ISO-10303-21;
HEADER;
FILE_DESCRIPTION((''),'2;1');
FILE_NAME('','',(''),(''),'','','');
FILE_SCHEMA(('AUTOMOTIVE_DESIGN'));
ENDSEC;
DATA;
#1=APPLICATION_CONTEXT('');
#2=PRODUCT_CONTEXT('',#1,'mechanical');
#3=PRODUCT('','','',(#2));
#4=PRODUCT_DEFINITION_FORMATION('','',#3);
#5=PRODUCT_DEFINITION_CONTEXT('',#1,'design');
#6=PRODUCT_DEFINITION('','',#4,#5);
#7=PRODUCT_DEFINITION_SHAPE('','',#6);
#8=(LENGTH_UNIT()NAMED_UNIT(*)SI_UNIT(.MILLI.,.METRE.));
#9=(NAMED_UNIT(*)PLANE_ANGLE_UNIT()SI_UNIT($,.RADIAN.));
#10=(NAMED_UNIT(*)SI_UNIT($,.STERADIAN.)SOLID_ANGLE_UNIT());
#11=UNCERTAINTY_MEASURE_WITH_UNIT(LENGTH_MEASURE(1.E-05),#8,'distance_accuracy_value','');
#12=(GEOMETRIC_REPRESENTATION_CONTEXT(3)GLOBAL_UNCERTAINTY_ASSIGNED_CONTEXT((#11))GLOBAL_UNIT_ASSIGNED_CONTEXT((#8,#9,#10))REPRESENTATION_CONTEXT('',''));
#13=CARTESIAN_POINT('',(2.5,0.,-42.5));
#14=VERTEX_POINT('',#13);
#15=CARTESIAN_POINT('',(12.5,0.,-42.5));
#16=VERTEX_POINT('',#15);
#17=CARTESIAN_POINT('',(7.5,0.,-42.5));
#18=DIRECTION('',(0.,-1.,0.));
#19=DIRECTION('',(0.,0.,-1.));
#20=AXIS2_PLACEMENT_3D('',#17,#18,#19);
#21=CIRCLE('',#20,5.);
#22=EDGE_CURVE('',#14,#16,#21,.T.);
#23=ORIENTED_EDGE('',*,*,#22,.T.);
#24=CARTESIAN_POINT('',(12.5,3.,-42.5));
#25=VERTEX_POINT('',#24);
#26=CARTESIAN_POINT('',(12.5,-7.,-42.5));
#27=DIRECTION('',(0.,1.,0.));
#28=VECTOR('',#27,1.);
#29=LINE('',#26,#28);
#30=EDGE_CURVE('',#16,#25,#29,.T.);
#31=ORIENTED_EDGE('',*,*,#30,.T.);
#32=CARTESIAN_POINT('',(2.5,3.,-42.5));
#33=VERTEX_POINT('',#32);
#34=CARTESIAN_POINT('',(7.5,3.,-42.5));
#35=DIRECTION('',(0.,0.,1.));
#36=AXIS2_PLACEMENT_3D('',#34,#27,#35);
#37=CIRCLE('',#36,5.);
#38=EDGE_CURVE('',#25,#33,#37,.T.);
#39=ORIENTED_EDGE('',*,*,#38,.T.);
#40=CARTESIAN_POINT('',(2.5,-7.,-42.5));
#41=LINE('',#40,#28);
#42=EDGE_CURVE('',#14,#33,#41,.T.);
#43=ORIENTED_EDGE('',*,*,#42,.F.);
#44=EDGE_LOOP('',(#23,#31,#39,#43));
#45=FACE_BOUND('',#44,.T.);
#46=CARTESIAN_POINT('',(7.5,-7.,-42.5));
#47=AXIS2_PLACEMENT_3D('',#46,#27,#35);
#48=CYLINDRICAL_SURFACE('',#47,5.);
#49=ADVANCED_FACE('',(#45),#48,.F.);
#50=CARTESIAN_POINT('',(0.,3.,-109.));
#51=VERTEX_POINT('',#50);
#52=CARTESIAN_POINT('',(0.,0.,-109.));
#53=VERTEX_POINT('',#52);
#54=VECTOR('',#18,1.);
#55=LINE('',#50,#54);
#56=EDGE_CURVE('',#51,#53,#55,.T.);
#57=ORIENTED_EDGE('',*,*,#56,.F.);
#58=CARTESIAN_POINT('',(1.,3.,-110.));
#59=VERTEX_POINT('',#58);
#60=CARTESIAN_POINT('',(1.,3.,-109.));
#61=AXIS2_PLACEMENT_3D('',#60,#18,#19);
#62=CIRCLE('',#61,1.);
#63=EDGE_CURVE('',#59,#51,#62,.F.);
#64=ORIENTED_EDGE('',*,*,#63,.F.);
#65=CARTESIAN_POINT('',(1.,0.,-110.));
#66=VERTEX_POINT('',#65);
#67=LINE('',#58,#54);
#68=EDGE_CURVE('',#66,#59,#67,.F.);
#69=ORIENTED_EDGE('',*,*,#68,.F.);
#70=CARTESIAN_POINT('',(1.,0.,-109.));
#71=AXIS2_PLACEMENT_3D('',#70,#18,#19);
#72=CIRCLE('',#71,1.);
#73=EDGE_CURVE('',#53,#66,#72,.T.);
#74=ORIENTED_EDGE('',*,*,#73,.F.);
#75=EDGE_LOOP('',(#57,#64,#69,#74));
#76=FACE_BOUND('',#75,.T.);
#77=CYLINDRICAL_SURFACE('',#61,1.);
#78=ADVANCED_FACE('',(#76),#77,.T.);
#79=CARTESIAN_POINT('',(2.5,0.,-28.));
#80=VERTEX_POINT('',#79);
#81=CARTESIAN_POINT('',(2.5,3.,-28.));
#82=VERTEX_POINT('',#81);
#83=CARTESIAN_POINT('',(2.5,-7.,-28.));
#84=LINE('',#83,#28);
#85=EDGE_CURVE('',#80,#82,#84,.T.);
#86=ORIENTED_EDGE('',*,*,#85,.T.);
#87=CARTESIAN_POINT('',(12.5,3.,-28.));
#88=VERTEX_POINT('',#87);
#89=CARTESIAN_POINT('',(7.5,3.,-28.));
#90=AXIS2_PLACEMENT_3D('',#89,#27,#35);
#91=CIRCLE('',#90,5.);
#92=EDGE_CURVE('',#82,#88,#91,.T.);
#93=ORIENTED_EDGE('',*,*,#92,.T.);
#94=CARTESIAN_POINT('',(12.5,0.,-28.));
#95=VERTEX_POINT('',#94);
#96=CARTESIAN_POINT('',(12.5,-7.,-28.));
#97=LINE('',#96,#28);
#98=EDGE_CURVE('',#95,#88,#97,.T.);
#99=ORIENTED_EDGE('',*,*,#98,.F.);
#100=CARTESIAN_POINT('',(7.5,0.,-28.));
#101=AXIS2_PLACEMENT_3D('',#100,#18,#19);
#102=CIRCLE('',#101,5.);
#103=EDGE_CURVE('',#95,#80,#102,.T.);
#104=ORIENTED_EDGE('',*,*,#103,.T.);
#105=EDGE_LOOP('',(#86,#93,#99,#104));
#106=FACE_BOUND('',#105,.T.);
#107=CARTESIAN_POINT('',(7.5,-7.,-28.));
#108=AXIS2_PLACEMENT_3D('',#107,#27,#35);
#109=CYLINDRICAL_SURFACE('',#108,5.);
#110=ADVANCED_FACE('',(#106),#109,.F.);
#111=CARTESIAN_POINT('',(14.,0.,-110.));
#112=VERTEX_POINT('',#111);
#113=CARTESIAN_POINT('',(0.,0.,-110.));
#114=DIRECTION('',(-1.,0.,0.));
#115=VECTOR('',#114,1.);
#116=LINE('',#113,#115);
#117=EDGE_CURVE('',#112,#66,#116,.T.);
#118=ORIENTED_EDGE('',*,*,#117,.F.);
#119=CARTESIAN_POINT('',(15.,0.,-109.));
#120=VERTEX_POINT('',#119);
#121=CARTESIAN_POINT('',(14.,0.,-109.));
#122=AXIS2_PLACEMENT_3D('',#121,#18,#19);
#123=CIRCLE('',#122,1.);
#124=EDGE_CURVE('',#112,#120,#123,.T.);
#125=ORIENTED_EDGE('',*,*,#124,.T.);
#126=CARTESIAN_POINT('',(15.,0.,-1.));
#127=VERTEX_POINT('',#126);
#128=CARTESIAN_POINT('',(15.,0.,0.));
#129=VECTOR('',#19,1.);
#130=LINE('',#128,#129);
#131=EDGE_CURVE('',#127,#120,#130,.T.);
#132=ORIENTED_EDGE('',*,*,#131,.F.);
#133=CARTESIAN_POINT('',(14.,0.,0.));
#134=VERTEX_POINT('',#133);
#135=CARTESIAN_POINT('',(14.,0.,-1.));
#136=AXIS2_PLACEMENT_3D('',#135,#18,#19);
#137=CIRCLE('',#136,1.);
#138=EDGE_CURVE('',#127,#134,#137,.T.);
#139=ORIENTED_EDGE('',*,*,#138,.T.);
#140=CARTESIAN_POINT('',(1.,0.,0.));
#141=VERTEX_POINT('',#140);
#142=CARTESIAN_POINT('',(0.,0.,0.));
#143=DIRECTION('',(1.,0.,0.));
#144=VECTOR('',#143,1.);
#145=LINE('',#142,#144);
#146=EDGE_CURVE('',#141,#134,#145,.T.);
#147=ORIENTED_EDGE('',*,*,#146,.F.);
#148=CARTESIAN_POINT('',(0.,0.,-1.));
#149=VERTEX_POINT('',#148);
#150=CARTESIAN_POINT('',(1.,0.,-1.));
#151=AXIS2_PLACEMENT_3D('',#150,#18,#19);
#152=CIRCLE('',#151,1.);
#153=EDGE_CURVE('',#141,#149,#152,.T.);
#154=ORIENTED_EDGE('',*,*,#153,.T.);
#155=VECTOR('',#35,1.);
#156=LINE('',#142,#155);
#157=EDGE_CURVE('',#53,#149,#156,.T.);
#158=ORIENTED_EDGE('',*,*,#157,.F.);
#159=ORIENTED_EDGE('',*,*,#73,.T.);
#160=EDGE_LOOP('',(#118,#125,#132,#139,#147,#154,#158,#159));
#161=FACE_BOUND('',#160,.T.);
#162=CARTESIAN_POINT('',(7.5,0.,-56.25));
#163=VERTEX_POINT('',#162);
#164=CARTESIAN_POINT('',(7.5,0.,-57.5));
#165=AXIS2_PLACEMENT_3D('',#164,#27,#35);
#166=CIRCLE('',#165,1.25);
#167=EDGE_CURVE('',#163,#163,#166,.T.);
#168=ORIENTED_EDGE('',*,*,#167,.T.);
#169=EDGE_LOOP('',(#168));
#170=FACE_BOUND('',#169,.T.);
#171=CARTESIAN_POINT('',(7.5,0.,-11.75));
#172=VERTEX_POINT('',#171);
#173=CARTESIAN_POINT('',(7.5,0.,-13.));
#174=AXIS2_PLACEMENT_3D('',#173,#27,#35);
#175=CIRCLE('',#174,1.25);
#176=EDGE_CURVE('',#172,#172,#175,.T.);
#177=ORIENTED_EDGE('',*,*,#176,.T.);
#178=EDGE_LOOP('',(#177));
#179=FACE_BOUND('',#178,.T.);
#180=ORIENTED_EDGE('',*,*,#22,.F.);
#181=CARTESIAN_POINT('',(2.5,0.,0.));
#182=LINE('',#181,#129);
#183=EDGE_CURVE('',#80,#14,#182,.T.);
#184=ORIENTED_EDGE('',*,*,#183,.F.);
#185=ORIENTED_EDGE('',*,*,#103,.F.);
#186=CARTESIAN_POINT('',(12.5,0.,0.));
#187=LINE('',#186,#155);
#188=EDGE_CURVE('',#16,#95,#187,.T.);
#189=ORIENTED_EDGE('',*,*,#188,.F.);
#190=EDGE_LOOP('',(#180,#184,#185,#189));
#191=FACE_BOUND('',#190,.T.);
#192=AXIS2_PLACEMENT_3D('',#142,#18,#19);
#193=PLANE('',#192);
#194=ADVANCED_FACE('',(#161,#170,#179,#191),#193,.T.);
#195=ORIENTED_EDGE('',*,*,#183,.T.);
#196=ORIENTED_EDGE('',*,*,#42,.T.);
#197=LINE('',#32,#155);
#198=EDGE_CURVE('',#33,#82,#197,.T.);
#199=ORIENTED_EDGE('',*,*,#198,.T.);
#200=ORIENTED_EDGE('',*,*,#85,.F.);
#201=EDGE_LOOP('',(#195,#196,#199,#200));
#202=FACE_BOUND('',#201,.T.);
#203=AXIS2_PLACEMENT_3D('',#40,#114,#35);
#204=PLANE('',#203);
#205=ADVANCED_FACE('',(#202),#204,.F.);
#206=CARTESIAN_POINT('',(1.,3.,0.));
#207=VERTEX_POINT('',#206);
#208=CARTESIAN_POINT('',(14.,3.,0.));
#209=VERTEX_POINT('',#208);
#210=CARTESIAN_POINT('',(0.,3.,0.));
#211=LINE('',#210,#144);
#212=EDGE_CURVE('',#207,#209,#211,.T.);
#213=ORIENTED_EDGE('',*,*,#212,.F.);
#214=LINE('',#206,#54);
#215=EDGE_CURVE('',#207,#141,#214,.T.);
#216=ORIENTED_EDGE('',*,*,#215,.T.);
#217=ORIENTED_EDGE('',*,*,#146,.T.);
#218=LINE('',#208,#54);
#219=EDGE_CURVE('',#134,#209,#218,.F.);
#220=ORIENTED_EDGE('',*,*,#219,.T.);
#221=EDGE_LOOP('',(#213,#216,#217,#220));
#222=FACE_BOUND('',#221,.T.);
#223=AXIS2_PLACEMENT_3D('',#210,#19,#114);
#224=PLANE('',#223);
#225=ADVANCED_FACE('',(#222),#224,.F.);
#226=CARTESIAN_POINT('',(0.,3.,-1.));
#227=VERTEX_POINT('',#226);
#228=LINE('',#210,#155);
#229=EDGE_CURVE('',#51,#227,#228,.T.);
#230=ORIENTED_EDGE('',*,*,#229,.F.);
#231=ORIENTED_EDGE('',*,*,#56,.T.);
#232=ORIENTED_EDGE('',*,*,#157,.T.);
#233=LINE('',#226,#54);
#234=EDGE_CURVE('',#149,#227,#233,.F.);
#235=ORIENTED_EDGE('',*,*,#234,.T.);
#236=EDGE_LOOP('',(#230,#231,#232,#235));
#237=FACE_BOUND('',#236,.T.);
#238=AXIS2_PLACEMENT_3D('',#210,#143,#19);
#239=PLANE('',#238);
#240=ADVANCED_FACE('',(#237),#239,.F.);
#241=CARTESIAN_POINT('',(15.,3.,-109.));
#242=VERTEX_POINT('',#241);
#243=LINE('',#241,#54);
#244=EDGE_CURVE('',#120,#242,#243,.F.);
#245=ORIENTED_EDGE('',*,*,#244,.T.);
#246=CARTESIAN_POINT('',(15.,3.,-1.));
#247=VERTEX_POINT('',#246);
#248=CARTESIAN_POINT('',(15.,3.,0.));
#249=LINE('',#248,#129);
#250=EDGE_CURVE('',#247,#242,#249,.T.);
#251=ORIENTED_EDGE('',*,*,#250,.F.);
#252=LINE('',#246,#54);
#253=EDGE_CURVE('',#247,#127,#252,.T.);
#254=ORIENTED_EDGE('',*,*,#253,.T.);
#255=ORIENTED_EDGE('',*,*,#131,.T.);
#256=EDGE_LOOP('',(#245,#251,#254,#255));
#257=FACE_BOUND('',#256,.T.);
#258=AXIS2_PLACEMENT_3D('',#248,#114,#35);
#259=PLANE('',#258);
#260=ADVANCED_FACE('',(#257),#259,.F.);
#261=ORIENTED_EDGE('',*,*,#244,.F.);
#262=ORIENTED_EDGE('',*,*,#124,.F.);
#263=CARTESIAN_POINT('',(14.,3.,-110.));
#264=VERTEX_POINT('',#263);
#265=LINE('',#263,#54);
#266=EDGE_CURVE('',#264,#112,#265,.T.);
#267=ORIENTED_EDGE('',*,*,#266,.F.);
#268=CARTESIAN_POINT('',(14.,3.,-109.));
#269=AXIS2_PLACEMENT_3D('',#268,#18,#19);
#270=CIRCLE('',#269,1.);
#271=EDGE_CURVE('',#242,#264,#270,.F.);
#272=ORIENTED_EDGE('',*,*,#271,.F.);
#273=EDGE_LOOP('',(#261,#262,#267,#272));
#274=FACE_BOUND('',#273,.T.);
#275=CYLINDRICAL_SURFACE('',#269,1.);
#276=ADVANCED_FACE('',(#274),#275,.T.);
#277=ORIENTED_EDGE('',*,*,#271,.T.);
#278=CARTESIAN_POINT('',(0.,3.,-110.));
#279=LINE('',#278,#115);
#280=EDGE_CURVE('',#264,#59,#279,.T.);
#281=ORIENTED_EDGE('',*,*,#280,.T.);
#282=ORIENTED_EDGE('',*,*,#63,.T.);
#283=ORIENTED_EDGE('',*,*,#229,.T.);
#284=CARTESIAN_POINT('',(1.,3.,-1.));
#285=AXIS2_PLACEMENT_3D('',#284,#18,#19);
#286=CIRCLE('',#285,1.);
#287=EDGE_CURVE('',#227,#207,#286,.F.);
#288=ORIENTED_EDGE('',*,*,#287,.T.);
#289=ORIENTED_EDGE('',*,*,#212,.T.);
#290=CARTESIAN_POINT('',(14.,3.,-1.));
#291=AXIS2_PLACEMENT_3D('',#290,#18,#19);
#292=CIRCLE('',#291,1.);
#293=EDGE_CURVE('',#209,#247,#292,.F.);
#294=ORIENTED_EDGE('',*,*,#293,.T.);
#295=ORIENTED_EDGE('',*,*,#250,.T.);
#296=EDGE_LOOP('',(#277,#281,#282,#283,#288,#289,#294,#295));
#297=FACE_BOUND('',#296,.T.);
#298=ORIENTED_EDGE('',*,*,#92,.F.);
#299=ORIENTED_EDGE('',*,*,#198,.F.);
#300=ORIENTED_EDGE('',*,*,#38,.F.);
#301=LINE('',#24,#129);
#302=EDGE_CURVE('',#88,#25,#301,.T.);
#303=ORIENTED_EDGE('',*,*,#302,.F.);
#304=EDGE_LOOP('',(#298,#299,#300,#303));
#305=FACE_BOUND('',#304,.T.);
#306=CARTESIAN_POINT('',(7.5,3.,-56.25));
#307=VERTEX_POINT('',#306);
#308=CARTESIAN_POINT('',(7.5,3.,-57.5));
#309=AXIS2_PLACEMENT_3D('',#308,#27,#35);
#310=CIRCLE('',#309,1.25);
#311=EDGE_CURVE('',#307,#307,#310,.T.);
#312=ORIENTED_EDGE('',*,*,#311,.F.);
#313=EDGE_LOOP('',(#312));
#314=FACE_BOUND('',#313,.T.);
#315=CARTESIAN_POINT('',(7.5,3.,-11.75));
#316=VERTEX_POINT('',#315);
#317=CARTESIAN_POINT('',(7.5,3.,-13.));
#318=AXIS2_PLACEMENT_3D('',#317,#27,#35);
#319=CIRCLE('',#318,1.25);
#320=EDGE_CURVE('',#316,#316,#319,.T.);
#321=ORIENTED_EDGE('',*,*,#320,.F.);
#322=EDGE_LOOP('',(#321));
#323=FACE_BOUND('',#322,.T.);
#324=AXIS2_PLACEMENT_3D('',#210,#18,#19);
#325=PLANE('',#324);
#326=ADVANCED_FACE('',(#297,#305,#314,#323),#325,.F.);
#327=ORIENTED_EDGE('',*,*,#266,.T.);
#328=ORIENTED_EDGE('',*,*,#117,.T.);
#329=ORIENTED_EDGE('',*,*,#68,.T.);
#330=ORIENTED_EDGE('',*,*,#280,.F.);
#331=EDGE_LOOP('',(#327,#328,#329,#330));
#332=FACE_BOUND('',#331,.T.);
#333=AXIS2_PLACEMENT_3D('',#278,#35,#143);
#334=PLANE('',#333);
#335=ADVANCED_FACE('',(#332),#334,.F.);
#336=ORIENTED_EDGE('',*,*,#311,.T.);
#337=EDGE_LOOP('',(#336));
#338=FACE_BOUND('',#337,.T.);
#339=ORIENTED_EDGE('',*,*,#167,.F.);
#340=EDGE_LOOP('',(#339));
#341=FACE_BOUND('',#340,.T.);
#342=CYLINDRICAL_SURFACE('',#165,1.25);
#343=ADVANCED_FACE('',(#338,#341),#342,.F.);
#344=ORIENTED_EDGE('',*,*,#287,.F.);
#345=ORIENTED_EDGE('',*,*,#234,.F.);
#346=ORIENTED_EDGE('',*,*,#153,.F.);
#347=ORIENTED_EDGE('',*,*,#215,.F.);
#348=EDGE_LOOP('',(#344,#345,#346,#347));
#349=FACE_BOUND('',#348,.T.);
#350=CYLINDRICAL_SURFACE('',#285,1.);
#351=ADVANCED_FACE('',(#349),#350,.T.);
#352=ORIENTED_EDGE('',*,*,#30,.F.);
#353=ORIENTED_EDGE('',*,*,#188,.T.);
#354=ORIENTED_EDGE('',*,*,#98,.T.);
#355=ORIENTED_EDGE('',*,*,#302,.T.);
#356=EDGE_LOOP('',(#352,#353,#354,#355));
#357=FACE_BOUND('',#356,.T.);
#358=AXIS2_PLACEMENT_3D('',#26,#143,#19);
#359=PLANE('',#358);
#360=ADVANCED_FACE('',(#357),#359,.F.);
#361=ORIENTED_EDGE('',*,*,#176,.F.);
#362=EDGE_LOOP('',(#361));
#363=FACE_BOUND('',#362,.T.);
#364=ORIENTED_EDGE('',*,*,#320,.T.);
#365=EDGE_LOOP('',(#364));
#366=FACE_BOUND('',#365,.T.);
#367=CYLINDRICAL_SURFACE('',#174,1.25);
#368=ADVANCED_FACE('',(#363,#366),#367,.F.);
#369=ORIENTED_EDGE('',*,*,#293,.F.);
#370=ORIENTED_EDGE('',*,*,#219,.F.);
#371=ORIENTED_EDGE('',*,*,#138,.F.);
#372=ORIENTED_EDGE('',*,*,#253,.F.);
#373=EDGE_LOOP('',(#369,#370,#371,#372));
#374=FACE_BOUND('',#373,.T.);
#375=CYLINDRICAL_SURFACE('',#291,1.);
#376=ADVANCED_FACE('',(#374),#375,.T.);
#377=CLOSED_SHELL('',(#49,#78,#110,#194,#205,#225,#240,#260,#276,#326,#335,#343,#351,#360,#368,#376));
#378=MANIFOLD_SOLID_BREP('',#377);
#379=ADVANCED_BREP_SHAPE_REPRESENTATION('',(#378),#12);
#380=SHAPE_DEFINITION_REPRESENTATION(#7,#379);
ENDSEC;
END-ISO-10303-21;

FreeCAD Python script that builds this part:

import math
import FreeCAD as App
import Part
import Sketcher

V = App.Vector
Q = App.Units.Quantity


def edges_at(feature, points):
    """Names of the edges that pass closest to the given points."""
    edges = feature.Shape.Edges
    near = lambda p: min(range(len(edges)), key=lambda i: edges[i].distToShape(Part.Vertex(*p))[0])
    return sorted({f"Edge{near(p) + 1}" for p in points})


def add_polygon(sketch, points):
    """Adds a closed chain of lines whose ends are joined by coincident constraints."""
    first, n = sketch.GeometryCount, len(points)
    for a, b in zip(points, points[1:] + points[:1]):
        sketch.addGeometry(Part.LineSegment(App.Vector(*a, 0), App.Vector(*b, 0)), False)
    for i in range(n):
        sketch.addConstraint(Sketcher.Constraint("Coincident", first + i, 2, first + (i + 1) % n, 1))

doc = App.newDocument("Part")
params = doc.addObject("Spreadsheet::Sheet", "Params")
for row, (alias, value) in enumerate([
    ("sketch1_width", "15 mm"),
    ("sketch1_height", "110 mm"),
    ("pad1_length", "3 mm"),
    ("fillet_radius", "1 mm"),
    ("sketch2_diameter", "2.5 mm"),
    ("pocket1_length", "3 mm"),
    ("sketch3_radius", "5 mm"),
    ("sketch3_height", "14.5 mm"),
    ("pocket2_length", "10 mm"),
], start=1):
    params.set(f"A{row}", alias)
    params.set(f"B{row}", "=" + value)
    params.setAlias(f"B{row}", alias)

body = doc.addObject("PartDesign::Body", "Body")

# Sketch on XZ plane
sketch1 = body.newObject("Sketcher::SketchObject", "Sketch")
sketch1.AttachmentSupport = (doc.getObject("XZ_Plane"), [""])
sketch1.MapMode = "FlatFace"
add_polygon(sketch1, [(0, -110), (0, 0), (15, 0), (15, -110)])  # lines 0-3
sketch1.addConstraint([
    Sketcher.Constraint("Vertical", 0),
    Sketcher.Constraint("Horizontal", 1),
    Sketcher.Constraint("Vertical", 2),
    Sketcher.Constraint("Horizontal", 3),
    Sketcher.Constraint("Coincident", 0, 2, -1, 1),
    Sketcher.Constraint("DistanceX", 1, 1, 1, 2, Q("15 mm")),
    Sketcher.Constraint("DistanceY", 0, 1, 0, 2, Q("110 mm")),
])
sketch1.setExpression("Constraints[9]", "Params.sketch1_width")
sketch1.setExpression("Constraints[10]", "Params.sketch1_height")
pad1 = body.newObject("PartDesign::Pad", "Pad")
pad1.Profile = sketch1
pad1.setExpression("Length", "Params.pad1_length")
pad1.Reversed = True
doc.recompute()

fillet = body.newObject("PartDesign::Fillet", "Fillet")
fillet.Base = (pad1, edges_at(pad1, [
    (0, 1.5, -110),
    (15, 1.5, -110),
    (15, 1.5, 0),
    (0, 1.5, 0),
]))
fillet.setExpression("Radius", "Params.fillet_radius")

# Sketch on XZ plane
sketch2 = body.newObject("Sketcher::SketchObject", "Sketch001")
sketch2.AttachmentSupport = (doc.getObject("XZ_Plane"), [""])
sketch2.MapMode = "FlatFace"
sketch2.AttachmentOffset = App.Placement(V(0, 0, -3), App.Rotation())
sketch2.addGeometry([
    Part.Circle(V(7.5, -13, 0), V(0, 0, 1), 1.2),
    Part.Circle(V(7.5, -57.5, 0), V(0, 0, 1), 1.2),
], False)
sketch2.addConstraint([
    Sketcher.Constraint("Equal", 0, 1),
    Sketcher.Constraint("Vertical", 0, 3, 1, 3),
    Sketcher.Constraint("Diameter", 0, Q("2.5 mm")),
    Sketcher.Constraint("DistanceY", 0, 3, -1, 1, Q("13 mm")),
    Sketcher.Constraint("DistanceX", -1, 1, 0, 3, Q("7.5 mm")),
    Sketcher.Constraint("DistanceY", 1, 3, -1, 1, Q("57.5 mm")),
])
sketch2.setExpression("Constraints[2]", "Params.sketch2_diameter")
pocket1 = body.newObject("PartDesign::Pocket", "Pocket")
pocket1.Profile = sketch2
pocket1.setExpression("Length", "Params.pocket1_length")
pocket1.Reversed = True

# Sketch on XZ plane
sketch3 = body.newObject("Sketcher::SketchObject", "Sketch002")
sketch3.AttachmentSupport = (doc.getObject("XZ_Plane"), [""])
sketch3.MapMode = "FlatFace"
sketch3.AttachmentOffset = App.Placement(V(0, 0, -3), App.Rotation())
sketch3.addGeometry([
    Part.LineSegment(V(12, -28, 0), V(12, -42, 0)),
    Part.ArcOfCircle(Part.Circle(V(8, -42, 0), V(0, 0, 1), 5), math.radians(180), math.radians(360)),
    Part.LineSegment(V(2, -42, 0), V(2, -28, 0)),
    Part.ArcOfCircle(Part.Circle(V(8, -28, 0), V(0, 0, 1), 5), math.radians(0), math.radians(180)),
], False)
sketch3.addConstraint([
    Sketcher.Constraint("Tangent", 0, 2, 1, 2),
    Sketcher.Constraint("Tangent", 1, 1, 2, 1),
    Sketcher.Constraint("Tangent", 2, 2, 3, 2),
    Sketcher.Constraint("Tangent", 3, 1, 0, 1),
    Sketcher.Constraint("Vertical", 0),
    Sketcher.Constraint("Vertical", 2),
    Sketcher.Constraint("Radius", 1, Q("5 mm")),
    Sketcher.Constraint("DistanceY", 0, 2, 0, 1, Q("14.5 mm")),
    Sketcher.Constraint("DistanceY", 3, 3, -1, 1, Q("28 mm")),
    Sketcher.Constraint("DistanceX", -1, 1, 1, 3, Q("7.5 mm")),
])
sketch3.setExpression("Constraints[6]", "Params.sketch3_radius")
sketch3.setExpression("Constraints[7]", "Params.sketch3_height")
pocket2 = body.newObject("PartDesign::Pocket", "Pocket001")
pocket2.Profile = sketch3
pocket2.setExpression("Length", "Params.pocket2_length")
pocket2.Reversed = True

doc.recompute()
